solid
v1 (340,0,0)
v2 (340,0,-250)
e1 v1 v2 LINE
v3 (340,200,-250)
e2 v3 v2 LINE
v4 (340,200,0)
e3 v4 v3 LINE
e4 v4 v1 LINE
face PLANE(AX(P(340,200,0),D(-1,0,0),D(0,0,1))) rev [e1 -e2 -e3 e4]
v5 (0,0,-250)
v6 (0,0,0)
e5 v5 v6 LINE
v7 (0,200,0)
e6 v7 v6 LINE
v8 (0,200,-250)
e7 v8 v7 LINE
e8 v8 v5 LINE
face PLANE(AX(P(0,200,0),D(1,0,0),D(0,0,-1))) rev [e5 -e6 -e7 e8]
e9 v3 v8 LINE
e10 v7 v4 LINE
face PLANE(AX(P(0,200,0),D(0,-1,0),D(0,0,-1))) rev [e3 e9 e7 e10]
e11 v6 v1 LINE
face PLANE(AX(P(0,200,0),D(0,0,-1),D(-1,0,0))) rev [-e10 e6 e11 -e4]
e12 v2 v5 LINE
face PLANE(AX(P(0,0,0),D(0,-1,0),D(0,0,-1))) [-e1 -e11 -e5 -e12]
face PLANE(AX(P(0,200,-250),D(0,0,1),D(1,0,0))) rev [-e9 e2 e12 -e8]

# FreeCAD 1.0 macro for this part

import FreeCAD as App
import Part
import Sketcher
from FreeCAD import Vector
Q = App.Units.Quantity

doc = App.newDocument("Part")
params = doc.addObject("Spreadsheet::Sheet", "Params")
for row, (alias, value) in enumerate([
    ("sketch1_width", "340 mm"),
    ("sketch1_height", "250 mm"),
    ("pad1_length", "200 mm"),
], start=1):
    params.set(f"A{row}", alias)
    params.set(f"B{row}", "=" + value)
    params.setAlias(f"B{row}", alias)

body = doc.addObject("PartDesign::Body", "Body")

# Sketch on XZ plane
sketch1 = body.newObject("Sketcher::SketchObject", "Sketch")
sketch1.AttachmentSupport = (doc.getObject("XZ_Plane"), [""])
sketch1.MapMode = "FlatFace"
sketch1.addGeometry(Part.LineSegment(Vector(0, -250, 0), Vector(0, 0, 0)), False)
sketch1.addGeometry(Part.LineSegment(Vector(0, 0, 0), Vector(340, 0, 0)), False)
sketch1.addGeometry(Part.LineSegment(Vector(340, 0, 0), Vector(340, -250, 0)), False)
sketch1.addGeometry(Part.LineSegment(Vector(340, -250, 0), Vector(0, -250, 0)), False)
sketch1.addConstraint(Sketcher.Constraint("Coincident", 0, 2, 1, 1))
sketch1.addConstraint(Sketcher.Constraint("Coincident", 1, 2, 2, 1))
sketch1.addConstraint(Sketcher.Constraint("Coincident", 2, 2, 3, 1))
sketch1.addConstraint(Sketcher.Constraint("Coincident", 3, 2, 0, 1))
sketch1.addConstraint(Sketcher.Constraint("Vertical", 0))
sketch1.addConstraint(Sketcher.Constraint("Horizontal", 1))
sketch1.addConstraint(Sketcher.Constraint("Vertical", 2))
sketch1.addConstraint(Sketcher.Constraint("Horizontal", 3))
sketch1.addConstraint(Sketcher.Constraint("Coincident", 0, 2, -1, 1))
sketch1.addConstraint(Sketcher.Constraint("DistanceX", 1, 1, 1, 2, Q("340 mm")))
sketch1.addConstraint(Sketcher.Constraint("DistanceY", 0, 1, 0, 2, Q("250 mm")))
sketch1.setExpression("Constraints[9]", "Params.sketch1_width")
sketch1.setExpression("Constraints[10]", "Params.sketch1_height")
pad1 = body.newObject("PartDesign::Pad", "Pad")
pad1.Profile = sketch1
pad1.setExpression("Length", "Params.pad1_length")
pad1.Reversed = True

doc.recompute()
